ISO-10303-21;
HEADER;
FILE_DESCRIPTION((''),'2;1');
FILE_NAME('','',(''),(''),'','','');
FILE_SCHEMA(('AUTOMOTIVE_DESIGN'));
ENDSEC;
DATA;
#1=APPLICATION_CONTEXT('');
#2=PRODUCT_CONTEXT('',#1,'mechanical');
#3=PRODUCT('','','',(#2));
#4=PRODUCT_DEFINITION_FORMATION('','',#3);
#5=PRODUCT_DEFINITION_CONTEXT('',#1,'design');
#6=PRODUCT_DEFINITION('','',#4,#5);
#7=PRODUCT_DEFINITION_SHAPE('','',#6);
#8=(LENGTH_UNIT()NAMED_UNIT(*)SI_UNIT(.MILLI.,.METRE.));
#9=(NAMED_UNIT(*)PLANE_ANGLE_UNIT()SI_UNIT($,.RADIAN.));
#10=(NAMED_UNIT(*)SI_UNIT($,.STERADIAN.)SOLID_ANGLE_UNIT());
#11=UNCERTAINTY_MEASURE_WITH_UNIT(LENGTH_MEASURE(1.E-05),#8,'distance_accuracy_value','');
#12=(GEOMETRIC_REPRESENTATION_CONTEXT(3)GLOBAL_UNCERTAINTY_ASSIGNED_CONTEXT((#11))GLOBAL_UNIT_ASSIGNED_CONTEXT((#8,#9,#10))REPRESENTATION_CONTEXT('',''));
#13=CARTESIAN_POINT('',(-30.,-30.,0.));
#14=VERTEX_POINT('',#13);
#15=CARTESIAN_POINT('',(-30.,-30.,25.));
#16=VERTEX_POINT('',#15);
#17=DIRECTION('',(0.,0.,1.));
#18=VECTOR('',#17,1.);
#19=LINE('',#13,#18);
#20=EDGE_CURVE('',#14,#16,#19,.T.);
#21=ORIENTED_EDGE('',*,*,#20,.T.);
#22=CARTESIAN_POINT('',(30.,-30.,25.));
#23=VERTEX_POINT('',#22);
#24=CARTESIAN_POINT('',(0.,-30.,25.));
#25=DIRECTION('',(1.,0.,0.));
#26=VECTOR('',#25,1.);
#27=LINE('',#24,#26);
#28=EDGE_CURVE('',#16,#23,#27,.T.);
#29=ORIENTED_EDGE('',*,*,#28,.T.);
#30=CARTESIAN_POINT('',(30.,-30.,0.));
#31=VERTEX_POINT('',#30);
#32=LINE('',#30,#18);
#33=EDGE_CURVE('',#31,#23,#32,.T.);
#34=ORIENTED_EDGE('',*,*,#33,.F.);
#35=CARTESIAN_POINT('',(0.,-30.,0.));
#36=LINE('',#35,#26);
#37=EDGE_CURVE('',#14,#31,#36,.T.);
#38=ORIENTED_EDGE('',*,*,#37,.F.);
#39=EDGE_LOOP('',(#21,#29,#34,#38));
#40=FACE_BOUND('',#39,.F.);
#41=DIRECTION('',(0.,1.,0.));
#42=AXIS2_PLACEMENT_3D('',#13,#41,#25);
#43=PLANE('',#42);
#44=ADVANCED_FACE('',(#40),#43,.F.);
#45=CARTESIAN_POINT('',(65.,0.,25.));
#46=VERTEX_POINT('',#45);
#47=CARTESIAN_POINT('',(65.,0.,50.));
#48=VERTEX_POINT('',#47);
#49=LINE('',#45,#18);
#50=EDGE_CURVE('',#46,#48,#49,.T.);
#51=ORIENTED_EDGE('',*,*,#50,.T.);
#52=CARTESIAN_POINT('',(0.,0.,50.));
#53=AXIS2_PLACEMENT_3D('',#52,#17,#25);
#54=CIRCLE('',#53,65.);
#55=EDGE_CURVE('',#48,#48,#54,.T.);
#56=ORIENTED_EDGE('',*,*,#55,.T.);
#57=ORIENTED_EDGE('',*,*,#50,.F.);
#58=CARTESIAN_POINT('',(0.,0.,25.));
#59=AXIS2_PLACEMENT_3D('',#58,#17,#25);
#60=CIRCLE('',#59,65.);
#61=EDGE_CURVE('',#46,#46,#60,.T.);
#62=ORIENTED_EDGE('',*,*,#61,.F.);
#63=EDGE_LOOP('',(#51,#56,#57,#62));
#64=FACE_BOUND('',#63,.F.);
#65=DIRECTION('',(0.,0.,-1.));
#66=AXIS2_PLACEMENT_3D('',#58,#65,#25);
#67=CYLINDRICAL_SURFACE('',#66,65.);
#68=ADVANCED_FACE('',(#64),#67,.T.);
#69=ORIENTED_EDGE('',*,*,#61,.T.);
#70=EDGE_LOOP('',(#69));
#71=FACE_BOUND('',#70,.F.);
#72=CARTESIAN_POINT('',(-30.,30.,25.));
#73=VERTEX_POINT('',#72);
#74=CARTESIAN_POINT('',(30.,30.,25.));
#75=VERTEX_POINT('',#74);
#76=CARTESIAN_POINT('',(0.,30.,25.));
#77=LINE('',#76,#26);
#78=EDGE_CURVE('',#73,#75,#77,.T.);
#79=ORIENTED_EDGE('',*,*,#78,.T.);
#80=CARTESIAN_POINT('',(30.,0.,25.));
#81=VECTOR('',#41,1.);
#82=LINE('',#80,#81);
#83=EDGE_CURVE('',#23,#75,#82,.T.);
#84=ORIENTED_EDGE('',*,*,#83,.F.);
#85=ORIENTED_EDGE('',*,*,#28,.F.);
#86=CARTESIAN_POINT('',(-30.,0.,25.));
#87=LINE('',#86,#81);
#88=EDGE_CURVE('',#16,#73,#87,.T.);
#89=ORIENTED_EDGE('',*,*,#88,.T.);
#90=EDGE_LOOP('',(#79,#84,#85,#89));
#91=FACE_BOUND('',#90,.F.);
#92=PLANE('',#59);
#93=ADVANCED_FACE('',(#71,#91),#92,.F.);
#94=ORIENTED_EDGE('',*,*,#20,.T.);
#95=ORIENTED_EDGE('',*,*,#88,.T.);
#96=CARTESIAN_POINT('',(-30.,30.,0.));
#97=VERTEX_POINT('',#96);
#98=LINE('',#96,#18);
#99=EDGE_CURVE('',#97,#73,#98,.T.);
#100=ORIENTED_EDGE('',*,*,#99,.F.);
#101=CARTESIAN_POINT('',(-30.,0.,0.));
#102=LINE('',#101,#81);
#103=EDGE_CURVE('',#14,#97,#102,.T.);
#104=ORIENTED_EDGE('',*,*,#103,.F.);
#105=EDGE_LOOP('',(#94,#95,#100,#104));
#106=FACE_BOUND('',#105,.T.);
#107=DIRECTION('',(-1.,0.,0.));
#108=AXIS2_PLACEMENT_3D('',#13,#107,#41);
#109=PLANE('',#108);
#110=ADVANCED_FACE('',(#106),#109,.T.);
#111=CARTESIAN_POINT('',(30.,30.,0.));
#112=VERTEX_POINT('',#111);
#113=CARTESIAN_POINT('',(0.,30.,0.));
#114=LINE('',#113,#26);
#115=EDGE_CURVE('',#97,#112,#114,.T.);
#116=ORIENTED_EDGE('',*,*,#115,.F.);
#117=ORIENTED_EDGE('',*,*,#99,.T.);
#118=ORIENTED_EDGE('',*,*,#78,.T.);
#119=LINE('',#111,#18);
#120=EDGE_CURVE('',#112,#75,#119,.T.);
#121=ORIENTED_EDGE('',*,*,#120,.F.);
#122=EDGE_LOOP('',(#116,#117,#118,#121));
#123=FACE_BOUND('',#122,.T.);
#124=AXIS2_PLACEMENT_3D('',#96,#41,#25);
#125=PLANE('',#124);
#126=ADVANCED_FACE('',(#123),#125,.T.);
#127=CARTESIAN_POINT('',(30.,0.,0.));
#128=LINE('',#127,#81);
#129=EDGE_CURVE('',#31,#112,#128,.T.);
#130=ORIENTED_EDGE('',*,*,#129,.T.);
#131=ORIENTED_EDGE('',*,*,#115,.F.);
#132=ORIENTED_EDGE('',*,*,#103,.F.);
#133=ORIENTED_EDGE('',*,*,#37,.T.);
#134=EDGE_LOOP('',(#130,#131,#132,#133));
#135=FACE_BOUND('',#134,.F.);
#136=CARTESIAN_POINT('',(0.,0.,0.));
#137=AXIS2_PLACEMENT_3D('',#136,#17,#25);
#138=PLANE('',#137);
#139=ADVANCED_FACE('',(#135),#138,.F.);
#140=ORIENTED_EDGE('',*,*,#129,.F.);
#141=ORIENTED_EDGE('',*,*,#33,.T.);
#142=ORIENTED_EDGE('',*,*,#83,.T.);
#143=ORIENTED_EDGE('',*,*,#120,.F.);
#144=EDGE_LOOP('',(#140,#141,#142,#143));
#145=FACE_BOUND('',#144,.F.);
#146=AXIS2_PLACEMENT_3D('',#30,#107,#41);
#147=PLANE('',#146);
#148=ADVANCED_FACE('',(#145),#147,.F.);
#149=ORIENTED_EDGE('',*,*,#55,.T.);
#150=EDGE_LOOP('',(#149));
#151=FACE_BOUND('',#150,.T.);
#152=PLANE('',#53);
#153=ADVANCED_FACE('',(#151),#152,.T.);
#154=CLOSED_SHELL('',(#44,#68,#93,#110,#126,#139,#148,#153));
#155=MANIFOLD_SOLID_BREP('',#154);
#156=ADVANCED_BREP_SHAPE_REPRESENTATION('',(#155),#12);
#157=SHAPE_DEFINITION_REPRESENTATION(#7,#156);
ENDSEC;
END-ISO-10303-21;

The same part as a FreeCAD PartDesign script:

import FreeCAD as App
import Part
import Sketcher
Q = App.Units.Quantity

doc = App.newDocument("Part")
body = doc.addObject("PartDesign::Body", "Body")

# Sketch on XY plane
sketch1 = doc.addObject("Sketcher::SketchObject", "Sketch")
body.addObject(sketch1)
sketch1.AttachmentSupport = (doc.XY_Plane, [""])
sketch1.MapMode = "FlatFace"
sketch1.addGeometry(Part.LineSegment(App.Vector(-30, 30, 0), App.Vector(-30, -30, 0)), False)
sketch1.addGeometry(Part.LineSegment(App.Vector(-30, -30, 0), App.Vector(30, -30, 0)), False)
sketch1.addGeometry(Part.LineSegment(App.Vector(30, -30, 0), App.Vector(30, 30, 0)), False)
sketch1.addGeometry(Part.LineSegment(App.Vector(30, 30, 0), App.Vector(-30, 30, 0)), False)
sketch1.addConstraint(Sketcher.Constraint("Coincident", 0, 2, 1, 1))
sketch1.addConstraint(Sketcher.Constraint("Coincident", 1, 2, 2, 1))
sketch1.addConstraint(Sketcher.Constraint("Coincident", 2, 2, 3, 1))
sketch1.addConstraint(Sketcher.Constraint("Coincident", 3, 2, 0, 1))
sketch1.addConstraint(Sketcher.Constraint("Vertical", 0))
sketch1.addConstraint(Sketcher.Constraint("Horizontal", 1))
sketch1.addConstraint(Sketcher.Constraint("Vertical", 2))
sketch1.addConstraint(Sketcher.Constraint("Horizontal", 3))
sketch1.addConstraint(Sketcher.Constraint("Symmetric", 0, 2, 2, 2, -1, 1))
sketch1.addConstraint(Sketcher.Constraint("Equal", 3, 0))
sketch1.addConstraint(Sketcher.Constraint("DistanceX", 1, 1, 1, 2, Q("60 mm")))
pad1 = doc.addObject("PartDesign::Pad", "Pad")
body.addObject(pad1)
pad1.Profile = sketch1
pad1.Length = 25

# Sketch on XY plane
sketch2 = doc.addObject("Sketcher::SketchObject", "Sketch001")
body.addObject(sketch2)
sketch2.AttachmentSupport = (doc.XY_Plane, [""])
sketch2.MapMode = "FlatFace"
sketch2.AttachmentOffset = App.Placement(App.Vector(0, 0, 25), App.Rotation())
sketch2.addGeometry(Part.Circle(App.Vector(0, 0, 0), App.Vector(0, 0, 1), 65), False)
sketch2.addConstraint(Sketcher.Constraint("Coincident", 0, 3, -1, 1))
sketch2.addConstraint(Sketcher.Constraint("Diameter", 0, Q("130 mm")))
pad2 = doc.addObject("PartDesign::Pad", "Pad001")
body.addObject(pad2)
pad2.Profile = sketch2
pad2.Length = 25

doc.recompute()
